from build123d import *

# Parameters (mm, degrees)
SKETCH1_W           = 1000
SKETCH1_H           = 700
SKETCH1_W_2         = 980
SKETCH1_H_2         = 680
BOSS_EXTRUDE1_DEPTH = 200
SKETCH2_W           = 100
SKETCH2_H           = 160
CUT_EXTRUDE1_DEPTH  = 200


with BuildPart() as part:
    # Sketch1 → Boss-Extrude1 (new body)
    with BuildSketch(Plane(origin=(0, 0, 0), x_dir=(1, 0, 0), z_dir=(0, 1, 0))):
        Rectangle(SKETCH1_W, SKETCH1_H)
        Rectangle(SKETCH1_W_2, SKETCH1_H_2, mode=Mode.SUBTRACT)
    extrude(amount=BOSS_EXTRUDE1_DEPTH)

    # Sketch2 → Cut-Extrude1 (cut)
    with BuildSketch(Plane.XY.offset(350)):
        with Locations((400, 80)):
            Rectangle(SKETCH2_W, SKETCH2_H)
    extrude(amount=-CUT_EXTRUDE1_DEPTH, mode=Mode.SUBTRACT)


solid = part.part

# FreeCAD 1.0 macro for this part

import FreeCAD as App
import Part
import Sketcher
from FreeCAD import Vector
Q = App.Units.Quantity


def add_polygon(sketch, points):
    """Adds a closed chain of lines whose ends are joined by coincident constraints."""
    first, n = sketch.GeometryCount, len(points)
    for a, b in zip(points, points[1:] + points[:1]):
        sketch.addGeometry(Part.LineSegment(App.Vector(*a, 0), App.Vector(*b, 0)), False)
    for i in range(n):
        sketch.addConstraint(Sketcher.Constraint("Coincident", first + i, 2, first + (i + 1) % n, 1))

doc = App.newDocument("Part")
body = doc.addObject("PartDesign::Body", "Body")

sketch1 = body.newObject("Sketcher::SketchObject", "Sketch")
sketch1.AttachmentSupport = (doc.getObject("XZ_Plane"), [""])
sketch1.MapMode = "FlatFace"
add_polygon(sketch1, [(-500, -350), (-500, 350), (500, 350), (500, -350)])
add_polygon(sketch1, [(490, 340), (-490, 340), (-490, -340), (490, -340)])
sketch1.addConstraint([
    Sketcher.Constraint("Vertical", 0),
    Sketcher.Constraint("Horizontal", 1),
    Sketcher.Constraint("Vertical", 2),
    Sketcher.Constraint("Horizontal", 3),
    Sketcher.Constraint("Horizontal", 4),
    Sketcher.Constraint("Vertical", 5),
    Sketcher.Constraint("Horizontal", 6),
    Sketcher.Constraint("Vertical", 7),
    Sketcher.Constraint("Symmetric", 0, 2, 2, 2, -1, 1),
    Sketcher.Constraint("Symmetric", 4, 2, 6, 2, -1, 1),
    Sketcher.Constraint("DistanceX", 1, 1, 1, 2, Q("1000 mm")),
    Sketcher.Constraint("DistanceX", 4, 2, 4, 1, Q("980 mm")),
    Sketcher.Constraint("DistanceY", 0, 1, 0, 2, Q("700 mm")),
    Sketcher.Constraint("DistanceY", 5, 2, 5, 1, Q("680 mm")),
])
pad1 = body.newObject("PartDesign::Pad", "Pad")
pad1.Profile = sketch1
pad1.Length = 200
pad1.Reversed = True

sketch2 = body.newObject("Sketcher::SketchObject", "Sketch001")
sketch2.AttachmentSupport = (doc.getObject("XY_Plane"), [""])
sketch2.MapMode = "FlatFace"
sketch2.AttachmentOffset = App.Placement(Vector(0, 0, 350), App.Rotation())
add_polygon(sketch2, [(350, 160), (350, 0), (450, 0), (450, 160)])
sketch2.addConstraint([
    Sketcher.Constraint("Vertical", 0),
    Sketcher.Constraint("Horizontal", 1),
    Sketcher.Constraint("Vertical", 2),
    Sketcher.Constraint("Horizontal", 3),
    Sketcher.Constraint("PointOnObject", 0, 2, -1),
    Sketcher.Constraint("DistanceX", 1, 1, 1, 2, Q("100 mm")),
    Sketcher.Constraint("DistanceY", 0, 2, 0, 1, Q("160 mm")),
    Sketcher.Constraint("DistanceX", -1, 1, 0, 2, Q("350 mm")),
])
pocket1 = body.newObject("PartDesign::Pocket", "Pocket")
pocket1.Profile = sketch2
pocket1.Length = 200

doc.recompute()
